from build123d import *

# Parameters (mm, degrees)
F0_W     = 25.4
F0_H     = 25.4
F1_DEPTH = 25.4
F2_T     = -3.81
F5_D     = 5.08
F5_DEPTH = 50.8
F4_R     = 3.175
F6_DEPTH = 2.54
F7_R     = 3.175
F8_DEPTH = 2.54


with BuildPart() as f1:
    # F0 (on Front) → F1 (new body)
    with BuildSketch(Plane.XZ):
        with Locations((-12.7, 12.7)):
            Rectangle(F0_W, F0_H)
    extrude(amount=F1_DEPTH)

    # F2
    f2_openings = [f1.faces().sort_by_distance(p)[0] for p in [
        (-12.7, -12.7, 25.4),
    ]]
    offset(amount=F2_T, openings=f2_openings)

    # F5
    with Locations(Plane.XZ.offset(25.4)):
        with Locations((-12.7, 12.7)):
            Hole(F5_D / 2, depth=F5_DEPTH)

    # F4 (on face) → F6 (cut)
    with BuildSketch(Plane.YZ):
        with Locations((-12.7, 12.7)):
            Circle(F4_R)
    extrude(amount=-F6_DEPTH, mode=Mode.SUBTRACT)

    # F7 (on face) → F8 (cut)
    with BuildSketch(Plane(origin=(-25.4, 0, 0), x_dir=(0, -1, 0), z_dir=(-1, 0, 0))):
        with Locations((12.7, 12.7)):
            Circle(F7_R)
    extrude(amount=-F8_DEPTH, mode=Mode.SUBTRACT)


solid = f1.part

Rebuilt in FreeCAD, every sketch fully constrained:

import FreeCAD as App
import Part
import Sketcher

V = App.Vector
Q = App.Units.Quantity


def faces_at(feature, points):
    """Names of the faces that lie closest to the given points."""
    faces = feature.Shape.Faces
    near = lambda p: min(range(len(faces)), key=lambda i: faces[i].distToShape(Part.Vertex(*p))[0])
    return sorted({f"Face{near(p) + 1}" for p in points})


def add_polygon(sketch, points):
    """Adds a closed chain of lines whose ends are joined by coincident constraints."""
    first, n = sketch.GeometryCount, len(points)
    for a, b in zip(points, points[1:] + points[:1]):
        sketch.addGeometry(Part.LineSegment(App.Vector(*a, 0), App.Vector(*b, 0)), False)
    for i in range(n):
        sketch.addConstraint(Sketcher.Constraint("Coincident", first + i, 2, first + (i + 1) % n, 1))

doc = App.newDocument("Part")
params = doc.addObject("Spreadsheet::Sheet", "Params")
for row, (alias, value) in enumerate([
    ("sketch1_width", "1 in"),
    ("pad1_length", "1 in"),
    ("thickness_wall", "0.15 in"),
    ("sketch2_diameter", "0.2 in"),
    ("hole_diameter", "0.2 in"),
    ("hole_depth", "2 in"),
    ("sketch3_diameter", "0.25 in"),
    ("pocket1_length", "0.1 in"),
    ("sketch4_diameter", "0.25 in"),
    ("pocket2_length", "0.1 in"),
], start=1):
    params.set(f"A{row}", alias)
    params.set(f"B{row}", "=" + value)
    params.setAlias(f"B{row}", alias)

body = doc.addObject("PartDesign::Body", "Body")

sketch1 = body.newObject("Sketcher::SketchObject", "Sketch")
sketch1.AttachmentSupport = (doc.getObject("XZ_Plane"), [""])
sketch1.MapMode = "FlatFace"
add_polygon(sketch1, [(-25, 25), (-25, 0), (0, 0), (0, 25)])
sketch1.addConstraint([
    Sketcher.Constraint("Vertical", 0),
    Sketcher.Constraint("Horizontal", 1),
    Sketcher.Constraint("Vertical", 2),
    Sketcher.Constraint("Horizontal", 3),
    Sketcher.Constraint("Coincident", 1, 2, -1, 1),
    Sketcher.Constraint("Equal", 3, 0),
    Sketcher.Constraint("DistanceX", 1, 1, 1, 2, Q("1 in")),
])
sketch1.setExpression("Constraints[10]", "Params.sketch1_width")
pad1 = body.newObject("PartDesign::Pad", "Pad")
pad1.Profile = sketch1
pad1.setExpression("Length", "Params.pad1_length")
doc.recompute()

thickness = body.newObject("PartDesign::Thickness", "Thickness")
thickness.Base = (pad1, faces_at(pad1, [(-12.7, -12.7, 25.4)]))
thickness.setExpression("Value", "Params.thickness_wall")
thickness.Reversed = True
thickness.Join = "Arc"

sketch2 = body.newObject("Sketcher::SketchObject", "Sketch001")
sketch2.AttachmentSupport = (doc.getObject("XZ_Plane"), [""])
sketch2.MapMode = "FlatFace"
sketch2.AttachmentOffset = App.Placement(V(0, 0, 1 * 25.4), App.Rotation())
sketch2.addGeometry(Part.Circle(V(-12.7, 12.7, 0), V(0, 0, 1), 2.5), False)
sketch2.addConstraint([
    Sketcher.Constraint("Diameter", 0, Q("0.2 in")),
    Sketcher.Constraint("DistanceX", 0, 3, -1, 1, Q("0.5 in")),
    Sketcher.Constraint("DistanceY", -1, 1, 0, 3, Q("0.5 in")),
])
sketch2.setExpression("Constraints[0]", "Params.sketch2_diameter")
doc.recompute()
hole = body.newObject("PartDesign::Hole", "Hole")
hole.Profile = sketch2
hole.ThreadType = "None"
hole.setExpression("Diameter", "Params.hole_diameter")
hole.DepthType = "Dimension"
hole.setExpression("Depth", "Params.hole_depth")
hole.DrillPoint = "Flat"

sketch3 = body.newObject("Sketcher::SketchObject", "Sketch002")
sketch3.AttachmentSupport = (doc.getObject("YZ_Plane"), [""])
sketch3.MapMode = "FlatFace"
sketch3.addGeometry(Part.Circle(V(-12.7, 12.7, 0), V(0, 0, 1), 3.2), False)
sketch3.addConstraint([
    Sketcher.Constraint("Diameter", 0, Q("0.25 in")),
    Sketcher.Constraint("DistanceX", 0, 3, -1, 1, Q("0.5 in")),
    Sketcher.Constraint("DistanceY", -1, 1, 0, 3, Q("0.5 in")),
])
sketch3.setExpression("Constraints[0]", "Params.sketch3_diameter")
pocket1 = body.newObject("PartDesign::Pocket", "Pocket")
pocket1.Profile = sketch3
pocket1.setExpression("Length", "Params.pocket1_length")

sketch4 = body.newObject("Sketcher::SketchObject", "Sketch003")
sketch4.AttachmentSupport = (doc.getObject("YZ_Plane"), [""])
sketch4.MapMode = "FlatFace"
sketch4.AttachmentOffset = App.Placement(V(0, 0, -1 * 25.4), App.Rotation())
sketch4.addGeometry(Part.Circle(V(-12.7, 12.7, 0), V(0, 0, 1), 3.2), False)
sketch4.addConstraint([
    Sketcher.Constraint("Diameter", 0, Q("0.25 in")),
    Sketcher.Constraint("DistanceX", 0, 3, -1, 1, Q("0.5 in")),
    Sketcher.Constraint("DistanceY", -1, 1, 0, 3, Q("0.5 in")),
])
sketch4.setExpression("Constraints[0]", "Params.sketch4_diameter")
pocket2 = body.newObject("PartDesign::Pocket", "Pocket001")
pocket2.Profile = sketch4
pocket2.setExpression("Length", "Params.pocket2_length")
pocket2.Reversed = True

doc.recompute()
